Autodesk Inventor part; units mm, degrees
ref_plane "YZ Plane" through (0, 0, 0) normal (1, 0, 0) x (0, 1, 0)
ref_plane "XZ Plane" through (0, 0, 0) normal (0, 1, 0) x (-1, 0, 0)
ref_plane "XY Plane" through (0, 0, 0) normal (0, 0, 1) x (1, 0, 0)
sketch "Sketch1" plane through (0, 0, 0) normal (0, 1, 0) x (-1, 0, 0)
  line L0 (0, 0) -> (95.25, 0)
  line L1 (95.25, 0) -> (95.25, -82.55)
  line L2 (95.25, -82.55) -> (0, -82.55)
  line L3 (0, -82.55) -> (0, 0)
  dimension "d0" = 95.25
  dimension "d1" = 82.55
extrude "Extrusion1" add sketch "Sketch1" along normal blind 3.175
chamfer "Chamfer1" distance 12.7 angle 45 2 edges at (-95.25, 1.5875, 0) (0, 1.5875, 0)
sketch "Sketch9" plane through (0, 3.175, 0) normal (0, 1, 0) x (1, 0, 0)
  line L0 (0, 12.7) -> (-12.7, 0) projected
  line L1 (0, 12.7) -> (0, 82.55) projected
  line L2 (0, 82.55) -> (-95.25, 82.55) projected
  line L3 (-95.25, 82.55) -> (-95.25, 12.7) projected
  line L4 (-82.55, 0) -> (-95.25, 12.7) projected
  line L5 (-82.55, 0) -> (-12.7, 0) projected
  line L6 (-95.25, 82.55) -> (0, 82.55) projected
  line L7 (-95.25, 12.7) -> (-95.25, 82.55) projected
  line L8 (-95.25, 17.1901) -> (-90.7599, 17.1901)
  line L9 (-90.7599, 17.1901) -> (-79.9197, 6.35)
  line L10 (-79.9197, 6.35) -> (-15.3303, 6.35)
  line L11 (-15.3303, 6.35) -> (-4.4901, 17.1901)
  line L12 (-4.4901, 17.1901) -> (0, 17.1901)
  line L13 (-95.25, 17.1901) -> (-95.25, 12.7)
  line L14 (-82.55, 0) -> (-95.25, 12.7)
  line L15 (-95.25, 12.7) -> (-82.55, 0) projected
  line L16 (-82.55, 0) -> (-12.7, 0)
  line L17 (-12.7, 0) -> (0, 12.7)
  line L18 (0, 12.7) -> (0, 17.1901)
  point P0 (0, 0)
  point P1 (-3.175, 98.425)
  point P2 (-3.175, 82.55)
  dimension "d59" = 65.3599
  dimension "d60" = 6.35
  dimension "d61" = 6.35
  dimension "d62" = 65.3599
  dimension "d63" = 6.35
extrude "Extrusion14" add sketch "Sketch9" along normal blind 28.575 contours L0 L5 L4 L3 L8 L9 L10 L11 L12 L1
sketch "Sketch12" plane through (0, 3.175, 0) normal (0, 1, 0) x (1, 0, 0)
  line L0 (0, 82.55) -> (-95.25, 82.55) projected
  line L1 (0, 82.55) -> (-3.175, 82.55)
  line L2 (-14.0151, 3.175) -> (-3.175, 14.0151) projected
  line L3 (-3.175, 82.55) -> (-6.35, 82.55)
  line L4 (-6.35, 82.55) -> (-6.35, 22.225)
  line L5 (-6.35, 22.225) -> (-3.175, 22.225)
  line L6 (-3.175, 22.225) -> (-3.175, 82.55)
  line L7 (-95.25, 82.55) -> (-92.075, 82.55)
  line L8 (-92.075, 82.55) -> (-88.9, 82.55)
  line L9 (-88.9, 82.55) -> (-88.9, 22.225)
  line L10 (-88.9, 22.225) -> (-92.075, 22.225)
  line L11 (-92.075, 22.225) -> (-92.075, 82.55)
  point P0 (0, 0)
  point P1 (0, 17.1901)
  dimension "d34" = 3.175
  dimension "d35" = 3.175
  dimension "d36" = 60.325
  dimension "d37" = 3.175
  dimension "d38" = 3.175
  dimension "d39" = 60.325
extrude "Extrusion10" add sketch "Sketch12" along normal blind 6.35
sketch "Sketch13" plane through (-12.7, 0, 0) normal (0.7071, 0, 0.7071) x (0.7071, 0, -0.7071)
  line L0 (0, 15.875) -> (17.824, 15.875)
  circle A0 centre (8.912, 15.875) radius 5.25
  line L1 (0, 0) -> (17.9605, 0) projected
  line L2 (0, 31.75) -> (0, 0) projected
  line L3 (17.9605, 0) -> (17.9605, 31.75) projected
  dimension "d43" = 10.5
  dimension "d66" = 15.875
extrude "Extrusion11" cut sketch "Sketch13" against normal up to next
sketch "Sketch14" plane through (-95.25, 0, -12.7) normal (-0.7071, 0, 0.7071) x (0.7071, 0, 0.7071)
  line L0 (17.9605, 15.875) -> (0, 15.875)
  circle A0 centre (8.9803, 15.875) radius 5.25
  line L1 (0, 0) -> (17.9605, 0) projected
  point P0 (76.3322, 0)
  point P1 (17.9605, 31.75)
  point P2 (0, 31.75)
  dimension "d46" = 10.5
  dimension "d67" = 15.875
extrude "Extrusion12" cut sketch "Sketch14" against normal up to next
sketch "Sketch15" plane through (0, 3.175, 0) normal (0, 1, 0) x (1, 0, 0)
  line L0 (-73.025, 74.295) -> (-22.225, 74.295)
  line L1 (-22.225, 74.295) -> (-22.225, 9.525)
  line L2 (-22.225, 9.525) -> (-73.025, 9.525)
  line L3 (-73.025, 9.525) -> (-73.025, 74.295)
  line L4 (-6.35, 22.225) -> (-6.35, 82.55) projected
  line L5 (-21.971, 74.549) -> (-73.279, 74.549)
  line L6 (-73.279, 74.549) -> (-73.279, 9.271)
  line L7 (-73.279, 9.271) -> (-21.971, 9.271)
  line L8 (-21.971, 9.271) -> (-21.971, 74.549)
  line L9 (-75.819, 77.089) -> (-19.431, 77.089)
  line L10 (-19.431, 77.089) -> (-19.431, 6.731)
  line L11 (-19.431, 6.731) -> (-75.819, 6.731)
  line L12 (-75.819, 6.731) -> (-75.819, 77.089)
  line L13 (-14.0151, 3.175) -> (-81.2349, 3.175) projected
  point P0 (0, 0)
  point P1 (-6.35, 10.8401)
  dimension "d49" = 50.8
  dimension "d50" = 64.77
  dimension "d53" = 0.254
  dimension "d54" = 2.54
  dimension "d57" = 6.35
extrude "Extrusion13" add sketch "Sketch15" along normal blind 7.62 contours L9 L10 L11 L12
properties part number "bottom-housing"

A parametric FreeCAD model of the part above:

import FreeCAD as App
import Part
import Sketcher
Q = App.Units.Quantity


def edges_at(feature, points):
    """Names of the edges that pass closest to the given points."""
    edges = feature.Shape.Edges
    near = lambda p: min(range(len(edges)), key=lambda i: edges[i].distToShape(Part.Vertex(*p))[0])
    return sorted({f"Edge{near(p) + 1}" for p in points})


def add_polygon(sketch, points):
    """Adds a closed chain of lines whose ends are joined by coincident constraints."""
    first, n = sketch.GeometryCount, len(points)
    for a, b in zip(points, points[1:] + points[:1]):
        sketch.addGeometry(Part.LineSegment(App.Vector(*a, 0), App.Vector(*b, 0)), False)
    for i in range(n):
        sketch.addConstraint(Sketcher.Constraint("Coincident", first + i, 2, first + (i + 1) % n, 1))

doc = App.newDocument("Part")
body = doc.addObject("PartDesign::Body", "Body")

# Sketch on XZ plane
sketch1 = body.newObject("Sketcher::SketchObject", "Sketch")
sketch1.AttachmentSupport = (doc.getObject("XZ_Plane"), [""])
sketch1.MapMode = "FlatFace"
add_polygon(sketch1, [(-95, 0), (0, 0), (0, -83), (-95, -83)])  # lines 0-3
sketch1.addConstraint(Sketcher.Constraint("Horizontal", 0))
sketch1.addConstraint(Sketcher.Constraint("Vertical", 1))
sketch1.addConstraint(Sketcher.Constraint("Horizontal", 2))
sketch1.addConstraint(Sketcher.Constraint("Vertical", 3))
sketch1.addConstraint(Sketcher.Constraint("Coincident", 0, 2, -1, 1))
sketch1.addConstraint(Sketcher.Constraint("DistanceX", 0, 1, 0, 2, Q("3.75 in")))
sketch1.addConstraint(Sketcher.Constraint("DistanceY", 1, 2, 1, 1, Q("3.25 in")))
pad1 = body.newObject("PartDesign::Pad", "Pad")
pad1.Profile = sketch1
pad1.Length = Q("0.125 in")
pad1.Reversed = True
doc.recompute()

chamfer = body.newObject("PartDesign::Chamfer", "Chamfer")
chamfer.Base = (pad1, edges_at(pad1, [(-95.25, 1.587, 0), (0, 1.587, 0)]))
chamfer.Size = Q("0.5 in")

# Sketch on XZ plane
sketch2 = body.newObject("Sketcher::SketchObject", "Sketch001")
sketch2.AttachmentSupport = (doc.getObject("XZ_Plane"), [""])
sketch2.MapMode = "FlatFace"
sketch2.AttachmentOffset = App.Placement(App.Vector(0, 0, -0.125 * 25.4), App.Rotation())
add_polygon(sketch2, [(-12.7, 0), (0, -12.7), (0, -17.2), (-4.5, -17.2), (-15.3, -6.3), (-79.9, -6.3), (-90.8, -17.2), (-95.2, -17.2), (-95.2, -12.7), (-82.5, 0)])  # lines 0-9
sketch2.addConstraint(Sketcher.Constraint("Vertical", 1))
sketch2.addConstraint(Sketcher.Constraint("Horizontal", 2))
sketch2.addConstraint(Sketcher.Constraint("Horizontal", 4))
sketch2.addConstraint(Sketcher.Constraint("Horizontal", 6))
sketch2.addConstraint(Sketcher.Constraint("Vertical", 7))
sketch2.addConstraint(Sketcher.Constraint("Horizontal", 9))
sketch2.addConstraint(Sketcher.Constraint("PointOnObject", 0, 2, -2))
sketch2.addConstraint(Sketcher.Constraint("PointOnObject", 8, 2, -1))
sketch2.addConstraint(Sketcher.Constraint("Parallel", 0, 3))
sketch2.addConstraint(Sketcher.Constraint("Perpendicular", 3, 5))
sketch2.addConstraint(Sketcher.Constraint("Parallel", 5, 8))
sketch2.addConstraint(Sketcher.Constraint("Horizontal", 2, 2, 5, 2))
sketch2.addConstraint(Sketcher.Constraint("Horizontal", 0, 2, 7, 2))
sketch2.addConstraint(Sketcher.Constraint("Equal", 2, 6))
sketch2.addConstraint(Sketcher.Constraint("Equal", 6, 1))
sketch2.addConstraint(Sketcher.Constraint("Equal", 3, 5))
sketch2.addConstraint(Sketcher.Constraint("DistanceY", 3, 2, -1, 1, Q("0.25 in")))
sketch2.addConstraint(Sketcher.Constraint("DistanceY", 0, 2, 3, 2, Q("0.25 in")))
sketch2.addConstraint(Sketcher.Constraint("DistanceX", 9, 1, 9, 2, Q("2.75 in")))
sketch2.addConstraint(Sketcher.Constraint("DistanceX", 4, 2, 4, 1, Q("2.5429 in")))
pad2 = body.newObject("PartDesign::Pad", "Pad001")
pad2.Profile = sketch2
pad2.Length = Q("1.125 in")
pad2.Reversed = True

# Sketch on XZ plane
sketch3 = body.newObject("Sketcher::SketchObject", "Sketch002")
sketch3.AttachmentSupport = (doc.getObject("XZ_Plane"), [""])
sketch3.MapMode = "FlatFace"
sketch3.AttachmentOffset = App.Placement(App.Vector(0, 0, -0.125 * 25.4), App.Rotation())
add_polygon(sketch3, [(-3.2, -22.2), (-3.2, -82.5), (-6.3, -82.5), (-6.3, -22.2)])  # lines 0-3
add_polygon(sketch3, [(-88.9, -22.2), (-88.9, -82.5), (-92.1, -82.5), (-92.1, -22.2)])  # lines 4-7
sketch3.addConstraint(Sketcher.Constraint("Vertical", 0))
sketch3.addConstraint(Sketcher.Constraint("Horizontal", 1))
sketch3.addConstraint(Sketcher.Constraint("Vertical", 2))
sketch3.addConstraint(Sketcher.Constraint("Horizontal", 3))
sketch3.addConstraint(Sketcher.Constraint("Vertical", 4))
sketch3.addConstraint(Sketcher.Constraint("Horizontal", 5))
sketch3.addConstraint(Sketcher.Constraint("Vertical", 6))
sketch3.addConstraint(Sketcher.Constraint("Horizontal", 7))
sketch3.addConstraint(Sketcher.Constraint("Horizontal", 1, 2, 4, 2))
sketch3.addConstraint(Sketcher.Constraint("Horizontal", 3, 2, 6, 2))
sketch3.addConstraint(Sketcher.Constraint("Equal", 3, 5))
sketch3.addConstraint(Sketcher.Constraint("DistanceX", 1, 2, 1, 1, Q("0.125 in")))
sketch3.addConstraint(Sketcher.Constraint("DistanceY", 0, 2, 0, 1, Q("2.375 in")))
sketch3.addConstraint(Sketcher.Constraint("DistanceX", 0, 2, -1, 1, Q("0.125 in")))
sketch3.addConstraint(Sketcher.Constraint("DistanceX", 4, 2, -1, 1, Q("3.5 in")))
sketch3.addConstraint(Sketcher.Constraint("DistanceY", 0, 2, -1, 1, Q("3.25 in")))
pad3 = body.newObject("PartDesign::Pad", "Pad002")
pad3.Profile = sketch3
pad3.Length = Q("0.25 in")
pad3.Reversed = True

# Sketch on an angled plane
sketch4 = body.newObject("Sketcher::SketchObject", "Sketch003")
sketch4.Placement = App.Placement(App.Vector(-12.7, 0, 0), App.Rotation(App.Vector(0.707106781, 0, -0.707106781), App.Vector(0, 0.999999999, 0), App.Vector(0.707106781, 0, 0.707106781), "ZXY"))
sketch4.addGeometry(Part.Circle(App.Vector(9, 16, 0), App.Vector(0, 0, 1), 5), False)
sketch4.addConstraint(Sketcher.Constraint("Diameter", 0, 10.5))
sketch4.addConstraint(Sketcher.Constraint("DistanceY", -1, 1, 0, 3, Q("0.625 in")))
sketch4.addConstraint(Sketcher.Constraint("DistanceX", -1, 1, 0, 3, 8.912))
pocket1 = body.newObject("PartDesign::Pocket", "Pocket")
pocket1.Profile = sketch4
pocket1.Type = "UpToFirst"

# Sketch on an angled plane
sketch5 = body.newObject("Sketcher::SketchObject", "Sketch004")
sketch5.Placement = App.Placement(App.Vector(-95.25, 0, -12.7), App.Rotation(App.Vector(0.707106781, 0, 0.707106781), App.Vector(0, 0.999999999, 0), App.Vector(-0.707106781, 0, 0.707106781), "ZXY"))
sketch5.addGeometry(Part.Circle(App.Vector(9, 16, 0), App.Vector(0, 0, 1), 5), False)
sketch5.addConstraint(Sketcher.Constraint("Diameter", 0, 10.5))
sketch5.addConstraint(Sketcher.Constraint("DistanceY", -1, 1, 0, 3, Q("0.625 in")))
sketch5.addConstraint(Sketcher.Constraint("DistanceX", -1, 1, 0, 3, 8.9803))
pocket2 = body.newObject("PartDesign::Pocket", "Pocket001")
pocket2.Profile = sketch5
pocket2.Type = "UpToFirst"

# Sketch on XZ plane
sketch6 = body.newObject("Sketcher::SketchObject", "Sketch005")
sketch6.AttachmentSupport = (doc.getObject("XZ_Plane"), [""])
sketch6.MapMode = "FlatFace"
sketch6.AttachmentOffset = App.Placement(App.Vector(0, 0, -0.125 * 25.4), App.Rotation())
add_polygon(sketch6, [(-19, -77), (-76, -77), (-76, -7), (-19, -7)])  # lines 0-3
add_polygon(sketch6, [(-73, -75), (-22, -75), (-22, -9), (-73, -9)])  # lines 4-7
sketch6.addConstraint(Sketcher.Constraint("Horizontal", 0))
sketch6.addConstraint(Sketcher.Constraint("Vertical", 1))
sketch6.addConstraint(Sketcher.Constraint("Horizontal", 2))
sketch6.addConstraint(Sketcher.Constraint("Vertical", 3))
sketch6.addConstraint(Sketcher.Constraint("Horizontal", 4))
sketch6.addConstraint(Sketcher.Constraint("Vertical", 5))
sketch6.addConstraint(Sketcher.Constraint("Horizontal", 6))
sketch6.addConstraint(Sketcher.Constraint("Vertical", 7))
sketch6.addConstraint(Sketcher.Constraint("DistanceX", 4, 2, 3, 2, Q("0.1 in")))
sketch6.addConstraint(Sketcher.Constraint("DistanceY", 3, 2, 4, 2, Q("0.1 in")))
sketch6.addConstraint(Sketcher.Constraint("DistanceY", 5, 2, 2, 2, Q("0.1 in")))
sketch6.addConstraint(Sketcher.Constraint("DistanceX", 1, 2, 6, 2, Q("0.1 in")))
sketch6.addConstraint(Sketcher.Constraint("DistanceX", 0, 2, 0, 1, Q("2.22 in")))
sketch6.addConstraint(Sketcher.Constraint("DistanceY", 1, 1, 1, 2, Q("2.77 in")))
sketch6.addConstraint(Sketcher.Constraint("DistanceX", 0, 2, -1, 1, Q("2.985 in")))
sketch6.addConstraint(Sketcher.Constraint("DistanceY", 0, 2, -1, 1, Q("3.035 in")))
pad4 = body.newObject("PartDesign::Pad", "Pad003")
pad4.Profile = sketch6
pad4.Length = Q("0.3 in")
pad4.Reversed = True

doc.recompute()
